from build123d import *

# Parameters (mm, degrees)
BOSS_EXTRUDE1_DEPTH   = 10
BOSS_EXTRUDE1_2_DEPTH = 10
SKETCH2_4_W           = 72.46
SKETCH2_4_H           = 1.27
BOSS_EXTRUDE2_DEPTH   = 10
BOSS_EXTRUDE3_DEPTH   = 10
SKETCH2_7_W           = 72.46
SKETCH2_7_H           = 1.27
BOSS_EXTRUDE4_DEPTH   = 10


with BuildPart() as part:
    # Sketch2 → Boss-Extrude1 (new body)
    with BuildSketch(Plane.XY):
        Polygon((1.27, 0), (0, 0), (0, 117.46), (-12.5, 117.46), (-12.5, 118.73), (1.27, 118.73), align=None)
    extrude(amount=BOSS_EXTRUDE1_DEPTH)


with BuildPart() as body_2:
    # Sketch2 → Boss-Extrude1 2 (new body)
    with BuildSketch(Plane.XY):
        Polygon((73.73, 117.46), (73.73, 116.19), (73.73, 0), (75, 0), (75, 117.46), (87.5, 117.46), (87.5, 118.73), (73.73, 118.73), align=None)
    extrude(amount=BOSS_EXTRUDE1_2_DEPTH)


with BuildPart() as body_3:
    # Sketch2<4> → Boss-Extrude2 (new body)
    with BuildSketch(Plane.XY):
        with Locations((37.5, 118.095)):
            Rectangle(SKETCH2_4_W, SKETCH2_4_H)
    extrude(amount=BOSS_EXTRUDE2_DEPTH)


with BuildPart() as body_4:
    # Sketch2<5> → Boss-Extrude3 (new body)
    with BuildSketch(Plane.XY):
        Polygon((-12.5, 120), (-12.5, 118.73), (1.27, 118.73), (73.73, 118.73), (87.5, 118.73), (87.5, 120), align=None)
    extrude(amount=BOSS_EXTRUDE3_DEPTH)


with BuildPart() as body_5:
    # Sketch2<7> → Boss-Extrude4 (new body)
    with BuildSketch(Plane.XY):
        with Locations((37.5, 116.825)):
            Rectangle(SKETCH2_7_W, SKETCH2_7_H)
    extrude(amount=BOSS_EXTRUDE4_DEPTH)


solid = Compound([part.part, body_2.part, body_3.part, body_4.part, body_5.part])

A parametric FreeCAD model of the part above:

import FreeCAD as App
import Part
import Sketcher
from FreeCAD import Vector
Q = App.Units.Quantity


def add_polygon(sketch, points):
    """Adds a closed chain of lines whose ends are joined by coincident constraints."""
    first, n = sketch.GeometryCount, len(points)
    for a, b in zip(points, points[1:] + points[:1]):
        sketch.addGeometry(Part.LineSegment(App.Vector(*a, 0), App.Vector(*b, 0)), False)
    for i in range(n):
        sketch.addConstraint(Sketcher.Constraint("Coincident", first + i, 2, first + (i + 1) % n, 1))

doc = App.newDocument("Part")
body = doc.addObject("PartDesign::Body", "Body")

# Sketch on XY plane
sketch1 = body.newObject("Sketcher::SketchObject", "Sketch")
sketch1.AttachmentSupport = (doc.getObject("XY_Plane"), [""])
sketch1.MapMode = "FlatFace"
add_polygon(sketch1, [(0, 0), (1.3, 0), (1.3, 118.7), (-12.5, 118.7), (-12.5, 117.5), (0, 117.5)])  # lines 0-5
sketch1.addConstraint([
    Sketcher.Constraint("Horizontal", 0),
    Sketcher.Constraint("Vertical", 1),
    Sketcher.Constraint("Horizontal", 2),
    Sketcher.Constraint("Vertical", 3),
    Sketcher.Constraint("Horizontal", 4),
    Sketcher.Constraint("Vertical", 5),
    Sketcher.Constraint("Coincident", 5, 2, -1, 1),
    Sketcher.Constraint("Equal", 0, 3),
    Sketcher.Constraint("DistanceX", 4, 1, 4, 2, Q("12.5 mm")),
    Sketcher.Constraint("DistanceX", 0, 1, 0, 2, Q("1.27 mm")),
    Sketcher.Constraint("DistanceY", 1, 1, 1, 2, Q("118.73 mm")),
])
pad1 = body.newObject("PartDesign::Pad", "Pad")
pad1.Profile = sketch1
pad1.Length = 10
body2 = doc.addObject("PartDesign::Body", "Body001")

# Sketch on XY plane
sketch2 = body2.newObject("Sketcher::SketchObject", "Sketch001")
sketch2.AttachmentSupport = (doc.getObject("XY_Plane001"), [""])
sketch2.MapMode = "FlatFace"
add_polygon(sketch2, [(73.7, 0), (75, 0), (75, 117.5), (87.5, 117.5), (87.5, 118.7), (73.7, 118.7)])  # lines 0-5
sketch2.addConstraint([
    Sketcher.Constraint("Horizontal", 0),
    Sketcher.Constraint("Vertical", 1),
    Sketcher.Constraint("Horizontal", 2),
    Sketcher.Constraint("Vertical", 3),
    Sketcher.Constraint("Horizontal", 4),
    Sketcher.Constraint("Vertical", 5),
    Sketcher.Constraint("PointOnObject", 0, 2, -1),
    Sketcher.Constraint("Equal", 0, 3),
    Sketcher.Constraint("DistanceX", 2, 1, 2, 2, Q("12.5 mm")),
    Sketcher.Constraint("DistanceX", -1, 1, 0, 2, Q("75 mm")),
    Sketcher.Constraint("DistanceX", 0, 1, 0, 2, Q("1.27 mm")),
    Sketcher.Constraint("DistanceY", 1, 1, 1, 2, Q("117.46 mm")),
])
pad2 = body2.newObject("PartDesign::Pad", "Pad001")
pad2.Profile = sketch2
pad2.Length = 10
body3 = doc.addObject("PartDesign::Body", "Body002")

# Sketch on XY plane
sketch3 = body3.newObject("Sketcher::SketchObject", "Sketch002")
sketch3.AttachmentSupport = (doc.getObject("XY_Plane002"), [""])
sketch3.MapMode = "FlatFace"
add_polygon(sketch3, [(1.3, 118.7), (1.3, 117.5), (73.7, 117.5), (73.7, 118.7)])  # lines 0-3
sketch3.addConstraint([
    Sketcher.Constraint("Vertical", 0),
    Sketcher.Constraint("Horizontal", 1),
    Sketcher.Constraint("Vertical", 2),
    Sketcher.Constraint("Horizontal", 3),
    Sketcher.Constraint("DistanceX", 1, 1, 1, 2, Q("72.46 mm")),
    Sketcher.Constraint("DistanceY", 0, 2, 0, 1, Q("1.27 mm")),
    Sketcher.Constraint("DistanceX", -1, 1, 0, 2, Q("1.27 mm")),
    Sketcher.Constraint("DistanceY", -1, 1, 0, 2, Q("117.46 mm")),
])
pad3 = body3.newObject("PartDesign::Pad", "Pad002")
pad3.Profile = sketch3
pad3.Length = 10
body4 = doc.addObject("PartDesign::Body", "Body003")

# Sketch on XY plane
sketch4 = body4.newObject("Sketcher::SketchObject", "Sketch003")
sketch4.AttachmentSupport = (doc.getObject("XY_Plane003"), [""])
sketch4.MapMode = "FlatFace"
add_polygon(sketch4, [(-12.5, 120), (-12.5, 118.7), (87.5, 118.7), (87.5, 120)])  # lines 0-3
sketch4.addConstraint([
    Sketcher.Constraint("Vertical", 0),
    Sketcher.Constraint("Horizontal", 1),
    Sketcher.Constraint("Vertical", 2),
    Sketcher.Constraint("Horizontal", 3),
    Sketcher.Constraint("DistanceX", 1, 1, 1, 2, Q("100 mm")),
    Sketcher.Constraint("DistanceY", -1, 1, 2, 2, Q("120 mm")),
    Sketcher.Constraint("DistanceY", 0, 2, 0, 1, Q("1.27 mm")),
    Sketcher.Constraint("DistanceX", 0, 2, -1, 1, Q("12.5 mm")),
])
pad4 = body4.newObject("PartDesign::Pad", "Pad003")
pad4.Profile = sketch4
pad4.Length = 10
body5 = doc.addObject("PartDesign::Body", "Body004")

# Sketch on XY plane
sketch5 = body5.newObject("Sketcher::SketchObject", "Sketch004")
sketch5.AttachmentSupport = (doc.getObject("XY_Plane004"), [""])
sketch5.MapMode = "FlatFace"
add_polygon(sketch5, [(1.3, 117.5), (1.3, 116.2), (73.7, 116.2), (73.7, 117.5)])  # lines 0-3
sketch5.addConstraint([
    Sketcher.Constraint("Vertical", 0),
    Sketcher.Constraint("Horizontal", 1),
    Sketcher.Constraint("Vertical", 2),
    Sketcher.Constraint("Horizontal", 3),
    Sketcher.Constraint("DistanceX", 1, 1, 1, 2, Q("72.46 mm")),
    Sketcher.Constraint("DistanceY", 0, 2, 0, 1, Q("1.27 mm")),
    Sketcher.Constraint("DistanceX", -1, 1, 0, 2, Q("1.27 mm")),
    Sketcher.Constraint("DistanceY", -1, 1, 0, 2, Q("116.19 mm")),
])
pad5 = body5.newObject("PartDesign::Pad", "Pad004")
pad5.Profile = sketch5
pad5.Length = 10

doc.recompute()
